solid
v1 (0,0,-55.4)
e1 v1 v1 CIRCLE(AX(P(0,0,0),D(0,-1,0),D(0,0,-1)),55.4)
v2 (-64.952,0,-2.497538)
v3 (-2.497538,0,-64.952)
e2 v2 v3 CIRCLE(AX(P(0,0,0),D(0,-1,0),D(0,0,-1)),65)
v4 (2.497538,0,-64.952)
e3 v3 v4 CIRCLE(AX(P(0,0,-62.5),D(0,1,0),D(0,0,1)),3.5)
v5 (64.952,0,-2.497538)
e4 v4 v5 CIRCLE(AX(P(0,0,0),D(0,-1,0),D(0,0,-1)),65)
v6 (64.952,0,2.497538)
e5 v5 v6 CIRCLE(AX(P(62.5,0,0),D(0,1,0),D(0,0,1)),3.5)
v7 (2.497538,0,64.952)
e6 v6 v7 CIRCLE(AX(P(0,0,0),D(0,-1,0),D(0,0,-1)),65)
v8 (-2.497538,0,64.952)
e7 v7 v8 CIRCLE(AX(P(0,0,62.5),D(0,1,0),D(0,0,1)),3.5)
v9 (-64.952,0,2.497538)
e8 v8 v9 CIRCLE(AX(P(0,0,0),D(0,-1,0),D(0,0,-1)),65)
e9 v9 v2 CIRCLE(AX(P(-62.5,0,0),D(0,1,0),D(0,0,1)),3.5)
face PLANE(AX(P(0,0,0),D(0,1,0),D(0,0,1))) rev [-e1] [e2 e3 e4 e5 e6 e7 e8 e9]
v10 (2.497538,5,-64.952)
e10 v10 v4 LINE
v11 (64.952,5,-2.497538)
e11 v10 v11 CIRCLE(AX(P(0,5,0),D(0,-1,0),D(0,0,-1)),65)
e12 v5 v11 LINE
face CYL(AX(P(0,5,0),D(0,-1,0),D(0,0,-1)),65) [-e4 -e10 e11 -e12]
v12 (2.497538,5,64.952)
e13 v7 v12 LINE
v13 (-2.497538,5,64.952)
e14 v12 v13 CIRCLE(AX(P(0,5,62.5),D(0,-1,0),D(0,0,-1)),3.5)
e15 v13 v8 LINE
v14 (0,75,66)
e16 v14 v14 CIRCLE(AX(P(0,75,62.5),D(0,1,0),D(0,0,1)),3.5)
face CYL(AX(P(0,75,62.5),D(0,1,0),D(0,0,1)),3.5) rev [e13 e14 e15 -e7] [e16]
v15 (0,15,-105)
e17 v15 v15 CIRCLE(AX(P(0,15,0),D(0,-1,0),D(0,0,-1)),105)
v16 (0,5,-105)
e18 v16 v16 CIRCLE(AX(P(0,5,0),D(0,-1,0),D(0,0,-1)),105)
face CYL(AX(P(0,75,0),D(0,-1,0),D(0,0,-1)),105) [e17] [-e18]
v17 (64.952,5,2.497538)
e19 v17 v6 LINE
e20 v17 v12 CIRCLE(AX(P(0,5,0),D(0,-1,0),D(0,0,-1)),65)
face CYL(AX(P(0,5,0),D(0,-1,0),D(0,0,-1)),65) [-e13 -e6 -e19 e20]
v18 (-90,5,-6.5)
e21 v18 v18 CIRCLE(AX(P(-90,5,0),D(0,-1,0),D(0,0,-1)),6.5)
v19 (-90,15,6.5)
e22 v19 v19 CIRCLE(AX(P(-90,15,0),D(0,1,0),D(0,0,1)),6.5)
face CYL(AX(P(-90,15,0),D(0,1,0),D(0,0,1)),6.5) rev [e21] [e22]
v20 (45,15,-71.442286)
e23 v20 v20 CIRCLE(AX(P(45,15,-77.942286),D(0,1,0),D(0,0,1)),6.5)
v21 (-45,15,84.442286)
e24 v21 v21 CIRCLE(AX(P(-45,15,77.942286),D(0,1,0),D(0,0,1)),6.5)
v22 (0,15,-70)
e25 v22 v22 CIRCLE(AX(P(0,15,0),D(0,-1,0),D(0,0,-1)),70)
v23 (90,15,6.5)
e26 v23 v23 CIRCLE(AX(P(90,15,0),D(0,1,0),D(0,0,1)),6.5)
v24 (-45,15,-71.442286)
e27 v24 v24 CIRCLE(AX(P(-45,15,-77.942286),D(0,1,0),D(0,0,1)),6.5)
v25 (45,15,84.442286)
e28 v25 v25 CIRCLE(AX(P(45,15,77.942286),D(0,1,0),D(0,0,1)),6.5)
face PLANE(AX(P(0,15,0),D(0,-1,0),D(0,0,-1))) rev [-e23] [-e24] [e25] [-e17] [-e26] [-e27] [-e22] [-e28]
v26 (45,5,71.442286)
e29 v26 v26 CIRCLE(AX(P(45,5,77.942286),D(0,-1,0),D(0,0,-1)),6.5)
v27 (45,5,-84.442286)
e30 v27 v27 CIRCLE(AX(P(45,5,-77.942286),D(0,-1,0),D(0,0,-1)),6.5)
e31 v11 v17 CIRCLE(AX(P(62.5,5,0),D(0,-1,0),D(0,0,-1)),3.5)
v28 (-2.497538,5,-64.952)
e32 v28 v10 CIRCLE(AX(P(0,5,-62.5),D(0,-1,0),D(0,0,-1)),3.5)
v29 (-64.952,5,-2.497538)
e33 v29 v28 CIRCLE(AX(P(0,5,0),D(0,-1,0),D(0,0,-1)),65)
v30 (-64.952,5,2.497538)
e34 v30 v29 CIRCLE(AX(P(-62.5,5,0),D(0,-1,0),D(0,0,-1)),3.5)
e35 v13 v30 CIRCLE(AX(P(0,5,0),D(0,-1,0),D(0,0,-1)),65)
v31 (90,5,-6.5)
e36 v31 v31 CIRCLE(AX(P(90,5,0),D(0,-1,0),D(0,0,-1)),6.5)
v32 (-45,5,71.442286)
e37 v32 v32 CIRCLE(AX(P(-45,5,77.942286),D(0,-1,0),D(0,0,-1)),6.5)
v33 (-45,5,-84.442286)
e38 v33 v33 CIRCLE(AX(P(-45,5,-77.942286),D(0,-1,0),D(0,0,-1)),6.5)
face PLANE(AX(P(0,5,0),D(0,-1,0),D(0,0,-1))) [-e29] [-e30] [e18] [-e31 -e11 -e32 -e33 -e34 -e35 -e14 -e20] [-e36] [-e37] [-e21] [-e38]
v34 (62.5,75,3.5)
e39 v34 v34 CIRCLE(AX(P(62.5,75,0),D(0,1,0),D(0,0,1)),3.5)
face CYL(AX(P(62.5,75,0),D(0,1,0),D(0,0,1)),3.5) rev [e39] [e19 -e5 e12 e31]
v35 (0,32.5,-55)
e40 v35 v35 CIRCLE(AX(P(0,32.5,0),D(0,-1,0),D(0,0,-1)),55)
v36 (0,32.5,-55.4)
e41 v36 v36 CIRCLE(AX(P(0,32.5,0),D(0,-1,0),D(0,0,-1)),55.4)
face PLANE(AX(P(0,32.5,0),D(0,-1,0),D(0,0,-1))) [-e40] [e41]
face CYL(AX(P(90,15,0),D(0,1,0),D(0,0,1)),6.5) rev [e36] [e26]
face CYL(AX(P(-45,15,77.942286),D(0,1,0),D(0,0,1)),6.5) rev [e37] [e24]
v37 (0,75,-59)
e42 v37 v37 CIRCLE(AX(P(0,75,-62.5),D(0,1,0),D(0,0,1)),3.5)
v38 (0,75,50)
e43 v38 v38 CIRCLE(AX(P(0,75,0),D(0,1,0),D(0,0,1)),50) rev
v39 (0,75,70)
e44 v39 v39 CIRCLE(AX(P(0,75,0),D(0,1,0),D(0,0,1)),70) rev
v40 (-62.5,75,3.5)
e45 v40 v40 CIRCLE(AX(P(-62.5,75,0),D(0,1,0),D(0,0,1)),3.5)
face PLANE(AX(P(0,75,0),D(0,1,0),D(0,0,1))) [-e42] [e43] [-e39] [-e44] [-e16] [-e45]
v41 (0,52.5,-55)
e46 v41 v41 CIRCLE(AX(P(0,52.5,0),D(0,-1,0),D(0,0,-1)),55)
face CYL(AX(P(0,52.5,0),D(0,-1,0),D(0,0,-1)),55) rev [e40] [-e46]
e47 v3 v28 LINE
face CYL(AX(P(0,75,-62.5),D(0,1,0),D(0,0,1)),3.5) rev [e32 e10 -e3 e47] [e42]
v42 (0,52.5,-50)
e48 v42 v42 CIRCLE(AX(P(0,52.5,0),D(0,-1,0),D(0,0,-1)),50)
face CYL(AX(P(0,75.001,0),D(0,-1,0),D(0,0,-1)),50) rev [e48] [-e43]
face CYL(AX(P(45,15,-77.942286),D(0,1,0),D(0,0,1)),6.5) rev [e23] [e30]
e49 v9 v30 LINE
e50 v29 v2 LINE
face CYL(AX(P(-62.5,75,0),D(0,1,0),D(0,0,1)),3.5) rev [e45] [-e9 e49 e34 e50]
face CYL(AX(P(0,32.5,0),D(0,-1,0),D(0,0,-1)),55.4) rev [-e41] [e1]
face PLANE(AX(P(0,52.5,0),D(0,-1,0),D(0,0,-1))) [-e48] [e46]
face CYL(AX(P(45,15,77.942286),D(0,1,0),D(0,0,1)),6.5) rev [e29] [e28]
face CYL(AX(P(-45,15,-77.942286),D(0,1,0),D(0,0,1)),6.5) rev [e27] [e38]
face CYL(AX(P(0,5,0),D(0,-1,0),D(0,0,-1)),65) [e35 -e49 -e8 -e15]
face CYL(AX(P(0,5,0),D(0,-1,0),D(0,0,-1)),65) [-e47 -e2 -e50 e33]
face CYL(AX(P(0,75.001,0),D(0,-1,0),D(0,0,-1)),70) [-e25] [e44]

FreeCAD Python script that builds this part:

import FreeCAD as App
import Part
import Sketcher
from FreeCAD import Vector
Q = App.Units.Quantity

doc = App.newDocument("Part")
body = doc.addObject("PartDesign::Body", "Body")

# Sketch on XZ plane
sketch1 = body.newObject("Sketcher::SketchObject", "Sketch")
sketch1.AttachmentSupport = (doc.getObject("XZ_Plane"), [""])
sketch1.MapMode = "FlatFace"
sketch1.addGeometry(Part.Circle(Vector(0, 0, 0), Vector(0, 0, 1), 105), False)
sketch1.addConstraint(Sketcher.Constraint("Coincident", 0, 3, -1, 1))
sketch1.addConstraint(Sketcher.Constraint("Diameter", 0, Q("210 mm")))
pad1 = body.newObject("PartDesign::Pad", "Pad")
pad1.Profile = sketch1
pad1.Length = 75
pad1.Reversed = True

# Sketch on XZ plane
sketch2 = body.newObject("Sketcher::SketchObject", "Sketch001")
sketch2.AttachmentSupport = (doc.getObject("XZ_Plane"), [""])
sketch2.MapMode = "FlatFace"
sketch2.addGeometry(Part.Circle(Vector(0, 0, 0), Vector(0, 0, 1), 105), False)
sketch2.addGeometry(Part.Circle(Vector(0, 0, 0), Vector(0, 0, 1), 65), False)
sketch2.addConstraint(Sketcher.Constraint("Coincident", 0, 3, -1, 1))
sketch2.addConstraint(Sketcher.Constraint("Coincident", 1, 3, -1, 1))
sketch2.addConstraint(Sketcher.Constraint("Diameter", 0, Q("210 mm")))
sketch2.addConstraint(Sketcher.Constraint("Diameter", 1, Q("130 mm")))
pocket1 = body.newObject("PartDesign::Pocket", "Pocket")
pocket1.Profile = sketch2
pocket1.Length = 5

# Sketch on XZ plane
sketch3 = body.newObject("Sketcher::SketchObject", "Sketch002")
sketch3.AttachmentSupport = (doc.getObject("XZ_Plane"), [""])
sketch3.MapMode = "FlatFace"
sketch3.AttachmentOffset = App.Placement(Vector(0, 0, -15), App.Rotation())
sketch3.addGeometry(Part.Circle(Vector(0, 0, 0), Vector(0, 0, 1), 105), False)
sketch3.addGeometry(Part.Circle(Vector(0, 0, 0), Vector(0, 0, 1), 70), False)
sketch3.addConstraint(Sketcher.Constraint("Coincident", 0, 3, -1, 1))
sketch3.addConstraint(Sketcher.Constraint("Coincident", 1, 3, -1, 1))
sketch3.addConstraint(Sketcher.Constraint("Diameter", 0, Q("210 mm")))
sketch3.addConstraint(Sketcher.Constraint("Diameter", 1, Q("140 mm")))
pocket2 = body.newObject("PartDesign::Pocket", "Pocket001")
pocket2.Profile = sketch3
pocket2.Type = "UpToFirst"

# Sketch on XZ plane
sketch4 = body.newObject("Sketcher::SketchObject", "Sketch003")
sketch4.AttachmentSupport = (doc.getObject("XZ_Plane"), [""])
sketch4.MapMode = "FlatFace"
sketch4.addGeometry(Part.Circle(Vector(0, 0, 0), Vector(0, 0, 1), 55.4), False)
sketch4.addConstraint(Sketcher.Constraint("Coincident", 0, 3, -1, 1))
sketch4.addConstraint(Sketcher.Constraint("Diameter", 0, Q("110.8 mm")))
pocket3 = body.newObject("PartDesign::Pocket", "Pocket002")
pocket3.Profile = sketch4
pocket3.Length = 32.5

# Sketch on XZ plane
sketch5 = body.newObject("Sketcher::SketchObject", "Sketch004")
sketch5.AttachmentSupport = (doc.getObject("XZ_Plane"), [""])
sketch5.MapMode = "FlatFace"
sketch5.AttachmentOffset = App.Placement(Vector(0, 0, -32.5), App.Rotation())
sketch5.addGeometry(Part.Circle(Vector(0, 0, 0), Vector(0, 0, 1), 55), False)
sketch5.addConstraint(Sketcher.Constraint("Coincident", 0, 3, -1, 1))
sketch5.addConstraint(Sketcher.Constraint("Diameter", 0, Q("110 mm")))
pocket4 = body.newObject("PartDesign::Pocket", "Pocket003")
pocket4.Profile = sketch5
pocket4.Length = 20

# Sketch on XZ plane
sketch6 = body.newObject("Sketcher::SketchObject", "Sketch005")
sketch6.AttachmentSupport = (doc.getObject("XZ_Plane"), [""])
sketch6.MapMode = "FlatFace"
sketch6.AttachmentOffset = App.Placement(Vector(0, 0, -52.5), App.Rotation())
sketch6.addGeometry(Part.Circle(Vector(0, 0, 0), Vector(0, 0, 1), 50), False)
sketch6.addConstraint(Sketcher.Constraint("Coincident", 0, 3, -1, 1))
sketch6.addConstraint(Sketcher.Constraint("Diameter", 0, Q("100 mm")))
pocket5 = body.newObject("PartDesign::Pocket", "Pocket004")
pocket5.Profile = sketch6
pocket5.Type = "UpToFirst"

# Sketch on XZ plane
sketch7 = body.newObject("Sketcher::SketchObject", "Sketch006")
sketch7.AttachmentSupport = (doc.getObject("XZ_Plane"), [""])
sketch7.MapMode = "FlatFace"
sketch7.AttachmentOffset = App.Placement(Vector(0, 0, -15), App.Rotation())
sketch7.addGeometry(Part.Circle(Vector(45, -77.942286, 0), Vector(0, 0, 1), 6.5), False)
sketch7.addGeometry(Part.Circle(Vector(90, 0, 0), Vector(0, 0, 1), 6.5), False)
sketch7.addGeometry(Part.Circle(Vector(45, 77.942286, 0), Vector(0, 0, 1), 6.5), False)
sketch7.addGeometry(Part.Circle(Vector(-45, 77.942286, 0), Vector(0, 0, 1), 6.5), False)
sketch7.addGeometry(Part.Circle(Vector(-90, 0, 0), Vector(0, 0, 1), 6.5), False)
sketch7.addGeometry(Part.Circle(Vector(-45, -77.942286, 0), Vector(0, 0, 1), 6.5), False)
sketch7.addConstraint(Sketcher.Constraint("Equal", 0, 1))
sketch7.addConstraint(Sketcher.Constraint("Equal", 1, 2))
sketch7.addConstraint(Sketcher.Constraint("Equal", 2, 3))
sketch7.addConstraint(Sketcher.Constraint("Equal", 3, 4))
sketch7.addConstraint(Sketcher.Constraint("Equal", 4, 5))
sketch7.addConstraint(Sketcher.Constraint("Symmetric", 0, 3, 3, 3, -1, 1))
sketch7.addConstraint(Sketcher.Constraint("Symmetric", 1, 3, 4, 3, -1, 1))
sketch7.addConstraint(Sketcher.Constraint("Symmetric", 2, 3, 5, 3, -1, 1))
sketch7.addConstraint(Sketcher.Constraint("Symmetric", 2, 3, 3, 3, -2))
sketch7.addConstraint(Sketcher.Constraint("PointOnObject", 1, 3, -1))
sketch7.addConstraint(Sketcher.Constraint("Diameter", 0, Q("13 mm")))
sketch7.addConstraint(Sketcher.Constraint("DistanceX", -1, 1, 0, 3, Q("45 mm")))
sketch7.addConstraint(Sketcher.Constraint("DistanceX", -1, 1, 1, 3, Q("90 mm")))
sketch7.addConstraint(Sketcher.Constraint("DistanceY", 0, 3, -1, 1, Q("77.942286 mm")))
doc.recompute()
hole = body.newObject("PartDesign::Hole", "Hole")
hole.Profile = sketch7
hole.ThreadType = "None"
hole.Diameter = 13
hole.DepthType = "ThroughAll"
hole.Reversed = True

# Sketch on XZ plane
sketch8 = body.newObject("Sketcher::SketchObject", "Sketch007")
sketch8.AttachmentSupport = (doc.getObject("XZ_Plane"), [""])
sketch8.MapMode = "FlatFace"
sketch8.AttachmentOffset = App.Placement(Vector(0, 0, -75), App.Rotation())
sketch8.addGeometry(Part.Circle(Vector(-62.5, 0, 0), Vector(0, 0, 1), 3.5), False)
sketch8.addGeometry(Part.Circle(Vector(0, -62.5, 0), Vector(0, 0, 1), 3.5), False)
sketch8.addGeometry(Part.Circle(Vector(62.5, 0, 0), Vector(0, 0, 1), 3.5), False)
sketch8.addGeometry(Part.Circle(Vector(0, 62.5, 0), Vector(0, 0, 1), 3.5), False)
sketch8.addConstraint(Sketcher.Constraint("Equal", 0, 1))
sketch8.addConstraint(Sketcher.Constraint("Equal", 1, 2))
sketch8.addConstraint(Sketcher.Constraint("Equal", 2, 3))
sketch8.addConstraint(Sketcher.Constraint("Symmetric", 0, 3, 2, 3, -1, 1))
sketch8.addConstraint(Sketcher.Constraint("Symmetric", 1, 3, 3, 3, -1, 1))
sketch8.addConstraint(Sketcher.Constraint("PointOnObject", 0, 3, -1))
sketch8.addConstraint(Sketcher.Constraint("PointOnObject", 1, 3, -2))
sketch8.addConstraint(Sketcher.Constraint("Diameter", 0, Q("7 mm")))
sketch8.addConstraint(Sketcher.Constraint("DistanceX", 0, 3, 2, 3, Q("125 mm")))
sketch8.addConstraint(Sketcher.Constraint("DistanceY", 1, 3, 3, 3, Q("125 mm")))
doc.recompute()
hole2 = body.newObject("PartDesign::Hole", "Hole001")
hole2.Profile = sketch8
hole2.ThreadType = "None"
hole2.Diameter = 7
hole2.DepthType = "ThroughAll"
hole2.Reversed = True

doc.recompute()
